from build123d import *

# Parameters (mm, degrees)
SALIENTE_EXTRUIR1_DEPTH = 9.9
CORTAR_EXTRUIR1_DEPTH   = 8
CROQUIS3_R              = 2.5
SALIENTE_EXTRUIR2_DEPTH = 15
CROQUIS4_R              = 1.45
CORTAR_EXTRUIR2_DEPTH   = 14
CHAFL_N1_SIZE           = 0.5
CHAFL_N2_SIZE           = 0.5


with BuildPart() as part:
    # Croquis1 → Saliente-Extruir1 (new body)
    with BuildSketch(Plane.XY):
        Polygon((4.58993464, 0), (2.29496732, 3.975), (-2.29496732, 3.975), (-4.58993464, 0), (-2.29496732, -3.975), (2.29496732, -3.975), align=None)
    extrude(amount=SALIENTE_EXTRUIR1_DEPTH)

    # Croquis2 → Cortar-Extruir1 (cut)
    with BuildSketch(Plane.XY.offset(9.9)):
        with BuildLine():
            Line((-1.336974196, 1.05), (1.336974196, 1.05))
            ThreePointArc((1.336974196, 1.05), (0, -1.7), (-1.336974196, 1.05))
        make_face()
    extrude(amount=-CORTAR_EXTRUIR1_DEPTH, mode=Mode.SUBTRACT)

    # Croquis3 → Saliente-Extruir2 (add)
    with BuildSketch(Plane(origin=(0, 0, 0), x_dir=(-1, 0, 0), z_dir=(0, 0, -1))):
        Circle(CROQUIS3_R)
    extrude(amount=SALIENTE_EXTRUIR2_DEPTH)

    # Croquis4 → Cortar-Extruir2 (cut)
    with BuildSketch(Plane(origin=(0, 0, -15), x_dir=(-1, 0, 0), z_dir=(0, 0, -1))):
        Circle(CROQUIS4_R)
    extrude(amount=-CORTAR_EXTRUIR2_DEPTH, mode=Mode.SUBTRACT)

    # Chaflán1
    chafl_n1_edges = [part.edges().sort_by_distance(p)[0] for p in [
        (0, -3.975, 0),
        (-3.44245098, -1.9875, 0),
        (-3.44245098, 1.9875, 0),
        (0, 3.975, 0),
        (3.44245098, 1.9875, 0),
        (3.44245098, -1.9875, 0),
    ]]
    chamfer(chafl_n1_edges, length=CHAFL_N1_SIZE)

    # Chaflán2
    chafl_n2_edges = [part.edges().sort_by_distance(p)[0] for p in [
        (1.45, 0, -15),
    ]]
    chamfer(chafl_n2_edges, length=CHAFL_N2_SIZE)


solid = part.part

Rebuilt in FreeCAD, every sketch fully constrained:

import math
import FreeCAD as App
import Part
import Sketcher

V = App.Vector
Q = App.Units.Quantity


def edges_at(feature, points):
    """Names of the edges that pass closest to the given points."""
    edges = feature.Shape.Edges
    near = lambda p: min(range(len(edges)), key=lambda i: edges[i].distToShape(Part.Vertex(*p))[0])
    return sorted({f"Edge{near(p) + 1}" for p in points})


def add_polygon(sketch, points):
    """Adds a closed chain of lines whose ends are joined by coincident constraints."""
    first, n = sketch.GeometryCount, len(points)
    for a, b in zip(points, points[1:] + points[:1]):
        sketch.addGeometry(Part.LineSegment(App.Vector(*a, 0), App.Vector(*b, 0)), False)
    for i in range(n):
        sketch.addConstraint(Sketcher.Constraint("Coincident", first + i, 2, first + (i + 1) % n, 1))

doc = App.newDocument("Part")
params = doc.addObject("Spreadsheet::Sheet", "Params")
for row, (alias, value) in enumerate([
    ("pad1_length", "9.9 mm"),
    ("sketch2_radius", "1.7 mm"),
    ("pocket1_length", "8 mm"),
    ("sketch3_diameter", "5 mm"),
    ("pad2_length", "15 mm"),
    ("sketch4_diameter", "2.9 mm"),
    ("pocket2_length", "14 mm"),
    ("chamfer_size", "0.5 mm"),
    ("chamfer2_size", "0.5 mm"),
], start=1):
    params.set(f"A{row}", alias)
    params.set(f"B{row}", "=" + value)
    params.setAlias(f"B{row}", alias)

body = doc.addObject("PartDesign::Body", "Body")

# Sketch on XY plane
sketch1 = body.newObject("Sketcher::SketchObject", "Sketch")
sketch1.AttachmentSupport = (doc.getObject("XY_Plane"), [""])
sketch1.MapMode = "FlatFace"
add_polygon(sketch1, [(4.6, 0), (2.3, 4), (-2.3, 4), (-4.6, 0), (-2.3, -4), (2.3, -4)])  # lines 0-5
sketch1.addConstraint(Sketcher.Constraint("Horizontal", 1))
sketch1.addConstraint(Sketcher.Constraint("Horizontal", 4))
sketch1.addConstraint(Sketcher.Constraint("Symmetric", 0, 2, 3, 2, -1, 1))
sketch1.addConstraint(Sketcher.Constraint("Symmetric", 2, 2, 5, 2, -1, 1))
sketch1.addConstraint(Sketcher.Constraint("PointOnObject", 2, 2, -1))
sketch1.addConstraint(Sketcher.Constraint("Parallel", 2, 5))
sketch1.addConstraint(Sketcher.Constraint("Vertical", 1, 2, 3, 2))
sketch1.addConstraint(Sketcher.Constraint("Angle", 0, Q("120 deg")))
sketch1.addConstraint(Sketcher.Constraint("DistanceY", 3, 2, 1, 2, Q("7.95 mm")))
sketch1.addConstraint(Sketcher.Constraint("DistanceX", 2, 2, 0, 2, Q("6.884902 mm")))
pad1 = body.newObject("PartDesign::Pad", "Pad")
pad1.Profile = sketch1
pad1.setExpression("Length", "Params.pad1_length")

# Sketch on XY plane
sketch2 = body.newObject("Sketcher::SketchObject", "Sketch001")
sketch2.AttachmentSupport = (doc.getObject("XY_Plane"), [""])
sketch2.MapMode = "FlatFace"
sketch2.AttachmentOffset = App.Placement(V(0, 0, 9.9), App.Rotation())
sketch2.addGeometry(Part.LineSegment(V(1.3, 1.1, 0), V(-1.3, 1.1, 0)), False)
sketch2.addGeometry(Part.ArcOfCircle(Part.Circle(V(0, 0, 0), V(0, 0, 1), 1.7), math.radians(142), math.radians(398)), False)
sketch2.addConstraint(Sketcher.Constraint("Coincident", 0, 1, 1, 2))
sketch2.addConstraint(Sketcher.Constraint("Coincident", 1, 1, 0, 2))
sketch2.addConstraint(Sketcher.Constraint("Horizontal", 0))
sketch2.addConstraint(Sketcher.Constraint("Coincident", 1, 3, -1, 1))
sketch2.addConstraint(Sketcher.Constraint("Radius", 1, Q("1.7 mm")))
sketch2.addConstraint(Sketcher.Constraint("DistanceY", -1, 1, 0, 1, Q("1.05 mm")))
sketch2.setExpression("Constraints[4]", "Params.sketch2_radius")
pocket1 = body.newObject("PartDesign::Pocket", "Pocket")
pocket1.Profile = sketch2
pocket1.setExpression("Length", "Params.pocket1_length")

# Sketch on XY plane
sketch3 = body.newObject("Sketcher::SketchObject", "Sketch002")
sketch3.AttachmentSupport = (doc.getObject("XY_Plane"), [""])
sketch3.MapMode = "FlatFace"
sketch3.addGeometry(Part.Circle(V(0, 0, 0), V(0, 0, 1), 2.5), False)
sketch3.addConstraint(Sketcher.Constraint("Coincident", 0, 3, -1, 1))
sketch3.addConstraint(Sketcher.Constraint("Diameter", 0, Q("5 mm")))
sketch3.setExpression("Constraints[1]", "Params.sketch3_diameter")
pad2 = body.newObject("PartDesign::Pad", "Pad001")
pad2.Profile = sketch3
pad2.setExpression("Length", "Params.pad2_length")
pad2.Reversed = True

# Sketch on XY plane
sketch4 = body.newObject("Sketcher::SketchObject", "Sketch003")
sketch4.AttachmentSupport = (doc.getObject("XY_Plane"), [""])
sketch4.MapMode = "FlatFace"
sketch4.AttachmentOffset = App.Placement(V(0, 0, -15), App.Rotation())
sketch4.addGeometry(Part.Circle(V(0, 0, 0), V(0, 0, 1), 1.4), False)
sketch4.addConstraint(Sketcher.Constraint("Coincident", 0, 3, -1, 1))
sketch4.addConstraint(Sketcher.Constraint("Diameter", 0, Q("2.9 mm")))
sketch4.setExpression("Constraints[1]", "Params.sketch4_diameter")
pocket2 = body.newObject("PartDesign::Pocket", "Pocket001")
pocket2.Profile = sketch4
pocket2.setExpression("Length", "Params.pocket2_length")
pocket2.Reversed = True
doc.recompute()

chamfer = body.newObject("PartDesign::Chamfer", "Chamfer")
chamfer.Base = (pocket2, edges_at(pocket2, [
    (0, -3.975, 0),
    (-3.442, -1.988, 0),
    (-3.442, 1.988, 0),
    (0, 3.975, 0),
    (3.442, 1.988, 0),
    (3.442, -1.988, 0),
]))
chamfer.setExpression("Size", "Params.chamfer_size")
doc.recompute()

chamfer2 = body.newObject("PartDesign::Chamfer", "Chamfer001")
chamfer2.Base = (chamfer, edges_at(chamfer, [(1.45, 0, -15)]))
chamfer2.setExpression("Size", "Params.chamfer2_size")

doc.recompute()
